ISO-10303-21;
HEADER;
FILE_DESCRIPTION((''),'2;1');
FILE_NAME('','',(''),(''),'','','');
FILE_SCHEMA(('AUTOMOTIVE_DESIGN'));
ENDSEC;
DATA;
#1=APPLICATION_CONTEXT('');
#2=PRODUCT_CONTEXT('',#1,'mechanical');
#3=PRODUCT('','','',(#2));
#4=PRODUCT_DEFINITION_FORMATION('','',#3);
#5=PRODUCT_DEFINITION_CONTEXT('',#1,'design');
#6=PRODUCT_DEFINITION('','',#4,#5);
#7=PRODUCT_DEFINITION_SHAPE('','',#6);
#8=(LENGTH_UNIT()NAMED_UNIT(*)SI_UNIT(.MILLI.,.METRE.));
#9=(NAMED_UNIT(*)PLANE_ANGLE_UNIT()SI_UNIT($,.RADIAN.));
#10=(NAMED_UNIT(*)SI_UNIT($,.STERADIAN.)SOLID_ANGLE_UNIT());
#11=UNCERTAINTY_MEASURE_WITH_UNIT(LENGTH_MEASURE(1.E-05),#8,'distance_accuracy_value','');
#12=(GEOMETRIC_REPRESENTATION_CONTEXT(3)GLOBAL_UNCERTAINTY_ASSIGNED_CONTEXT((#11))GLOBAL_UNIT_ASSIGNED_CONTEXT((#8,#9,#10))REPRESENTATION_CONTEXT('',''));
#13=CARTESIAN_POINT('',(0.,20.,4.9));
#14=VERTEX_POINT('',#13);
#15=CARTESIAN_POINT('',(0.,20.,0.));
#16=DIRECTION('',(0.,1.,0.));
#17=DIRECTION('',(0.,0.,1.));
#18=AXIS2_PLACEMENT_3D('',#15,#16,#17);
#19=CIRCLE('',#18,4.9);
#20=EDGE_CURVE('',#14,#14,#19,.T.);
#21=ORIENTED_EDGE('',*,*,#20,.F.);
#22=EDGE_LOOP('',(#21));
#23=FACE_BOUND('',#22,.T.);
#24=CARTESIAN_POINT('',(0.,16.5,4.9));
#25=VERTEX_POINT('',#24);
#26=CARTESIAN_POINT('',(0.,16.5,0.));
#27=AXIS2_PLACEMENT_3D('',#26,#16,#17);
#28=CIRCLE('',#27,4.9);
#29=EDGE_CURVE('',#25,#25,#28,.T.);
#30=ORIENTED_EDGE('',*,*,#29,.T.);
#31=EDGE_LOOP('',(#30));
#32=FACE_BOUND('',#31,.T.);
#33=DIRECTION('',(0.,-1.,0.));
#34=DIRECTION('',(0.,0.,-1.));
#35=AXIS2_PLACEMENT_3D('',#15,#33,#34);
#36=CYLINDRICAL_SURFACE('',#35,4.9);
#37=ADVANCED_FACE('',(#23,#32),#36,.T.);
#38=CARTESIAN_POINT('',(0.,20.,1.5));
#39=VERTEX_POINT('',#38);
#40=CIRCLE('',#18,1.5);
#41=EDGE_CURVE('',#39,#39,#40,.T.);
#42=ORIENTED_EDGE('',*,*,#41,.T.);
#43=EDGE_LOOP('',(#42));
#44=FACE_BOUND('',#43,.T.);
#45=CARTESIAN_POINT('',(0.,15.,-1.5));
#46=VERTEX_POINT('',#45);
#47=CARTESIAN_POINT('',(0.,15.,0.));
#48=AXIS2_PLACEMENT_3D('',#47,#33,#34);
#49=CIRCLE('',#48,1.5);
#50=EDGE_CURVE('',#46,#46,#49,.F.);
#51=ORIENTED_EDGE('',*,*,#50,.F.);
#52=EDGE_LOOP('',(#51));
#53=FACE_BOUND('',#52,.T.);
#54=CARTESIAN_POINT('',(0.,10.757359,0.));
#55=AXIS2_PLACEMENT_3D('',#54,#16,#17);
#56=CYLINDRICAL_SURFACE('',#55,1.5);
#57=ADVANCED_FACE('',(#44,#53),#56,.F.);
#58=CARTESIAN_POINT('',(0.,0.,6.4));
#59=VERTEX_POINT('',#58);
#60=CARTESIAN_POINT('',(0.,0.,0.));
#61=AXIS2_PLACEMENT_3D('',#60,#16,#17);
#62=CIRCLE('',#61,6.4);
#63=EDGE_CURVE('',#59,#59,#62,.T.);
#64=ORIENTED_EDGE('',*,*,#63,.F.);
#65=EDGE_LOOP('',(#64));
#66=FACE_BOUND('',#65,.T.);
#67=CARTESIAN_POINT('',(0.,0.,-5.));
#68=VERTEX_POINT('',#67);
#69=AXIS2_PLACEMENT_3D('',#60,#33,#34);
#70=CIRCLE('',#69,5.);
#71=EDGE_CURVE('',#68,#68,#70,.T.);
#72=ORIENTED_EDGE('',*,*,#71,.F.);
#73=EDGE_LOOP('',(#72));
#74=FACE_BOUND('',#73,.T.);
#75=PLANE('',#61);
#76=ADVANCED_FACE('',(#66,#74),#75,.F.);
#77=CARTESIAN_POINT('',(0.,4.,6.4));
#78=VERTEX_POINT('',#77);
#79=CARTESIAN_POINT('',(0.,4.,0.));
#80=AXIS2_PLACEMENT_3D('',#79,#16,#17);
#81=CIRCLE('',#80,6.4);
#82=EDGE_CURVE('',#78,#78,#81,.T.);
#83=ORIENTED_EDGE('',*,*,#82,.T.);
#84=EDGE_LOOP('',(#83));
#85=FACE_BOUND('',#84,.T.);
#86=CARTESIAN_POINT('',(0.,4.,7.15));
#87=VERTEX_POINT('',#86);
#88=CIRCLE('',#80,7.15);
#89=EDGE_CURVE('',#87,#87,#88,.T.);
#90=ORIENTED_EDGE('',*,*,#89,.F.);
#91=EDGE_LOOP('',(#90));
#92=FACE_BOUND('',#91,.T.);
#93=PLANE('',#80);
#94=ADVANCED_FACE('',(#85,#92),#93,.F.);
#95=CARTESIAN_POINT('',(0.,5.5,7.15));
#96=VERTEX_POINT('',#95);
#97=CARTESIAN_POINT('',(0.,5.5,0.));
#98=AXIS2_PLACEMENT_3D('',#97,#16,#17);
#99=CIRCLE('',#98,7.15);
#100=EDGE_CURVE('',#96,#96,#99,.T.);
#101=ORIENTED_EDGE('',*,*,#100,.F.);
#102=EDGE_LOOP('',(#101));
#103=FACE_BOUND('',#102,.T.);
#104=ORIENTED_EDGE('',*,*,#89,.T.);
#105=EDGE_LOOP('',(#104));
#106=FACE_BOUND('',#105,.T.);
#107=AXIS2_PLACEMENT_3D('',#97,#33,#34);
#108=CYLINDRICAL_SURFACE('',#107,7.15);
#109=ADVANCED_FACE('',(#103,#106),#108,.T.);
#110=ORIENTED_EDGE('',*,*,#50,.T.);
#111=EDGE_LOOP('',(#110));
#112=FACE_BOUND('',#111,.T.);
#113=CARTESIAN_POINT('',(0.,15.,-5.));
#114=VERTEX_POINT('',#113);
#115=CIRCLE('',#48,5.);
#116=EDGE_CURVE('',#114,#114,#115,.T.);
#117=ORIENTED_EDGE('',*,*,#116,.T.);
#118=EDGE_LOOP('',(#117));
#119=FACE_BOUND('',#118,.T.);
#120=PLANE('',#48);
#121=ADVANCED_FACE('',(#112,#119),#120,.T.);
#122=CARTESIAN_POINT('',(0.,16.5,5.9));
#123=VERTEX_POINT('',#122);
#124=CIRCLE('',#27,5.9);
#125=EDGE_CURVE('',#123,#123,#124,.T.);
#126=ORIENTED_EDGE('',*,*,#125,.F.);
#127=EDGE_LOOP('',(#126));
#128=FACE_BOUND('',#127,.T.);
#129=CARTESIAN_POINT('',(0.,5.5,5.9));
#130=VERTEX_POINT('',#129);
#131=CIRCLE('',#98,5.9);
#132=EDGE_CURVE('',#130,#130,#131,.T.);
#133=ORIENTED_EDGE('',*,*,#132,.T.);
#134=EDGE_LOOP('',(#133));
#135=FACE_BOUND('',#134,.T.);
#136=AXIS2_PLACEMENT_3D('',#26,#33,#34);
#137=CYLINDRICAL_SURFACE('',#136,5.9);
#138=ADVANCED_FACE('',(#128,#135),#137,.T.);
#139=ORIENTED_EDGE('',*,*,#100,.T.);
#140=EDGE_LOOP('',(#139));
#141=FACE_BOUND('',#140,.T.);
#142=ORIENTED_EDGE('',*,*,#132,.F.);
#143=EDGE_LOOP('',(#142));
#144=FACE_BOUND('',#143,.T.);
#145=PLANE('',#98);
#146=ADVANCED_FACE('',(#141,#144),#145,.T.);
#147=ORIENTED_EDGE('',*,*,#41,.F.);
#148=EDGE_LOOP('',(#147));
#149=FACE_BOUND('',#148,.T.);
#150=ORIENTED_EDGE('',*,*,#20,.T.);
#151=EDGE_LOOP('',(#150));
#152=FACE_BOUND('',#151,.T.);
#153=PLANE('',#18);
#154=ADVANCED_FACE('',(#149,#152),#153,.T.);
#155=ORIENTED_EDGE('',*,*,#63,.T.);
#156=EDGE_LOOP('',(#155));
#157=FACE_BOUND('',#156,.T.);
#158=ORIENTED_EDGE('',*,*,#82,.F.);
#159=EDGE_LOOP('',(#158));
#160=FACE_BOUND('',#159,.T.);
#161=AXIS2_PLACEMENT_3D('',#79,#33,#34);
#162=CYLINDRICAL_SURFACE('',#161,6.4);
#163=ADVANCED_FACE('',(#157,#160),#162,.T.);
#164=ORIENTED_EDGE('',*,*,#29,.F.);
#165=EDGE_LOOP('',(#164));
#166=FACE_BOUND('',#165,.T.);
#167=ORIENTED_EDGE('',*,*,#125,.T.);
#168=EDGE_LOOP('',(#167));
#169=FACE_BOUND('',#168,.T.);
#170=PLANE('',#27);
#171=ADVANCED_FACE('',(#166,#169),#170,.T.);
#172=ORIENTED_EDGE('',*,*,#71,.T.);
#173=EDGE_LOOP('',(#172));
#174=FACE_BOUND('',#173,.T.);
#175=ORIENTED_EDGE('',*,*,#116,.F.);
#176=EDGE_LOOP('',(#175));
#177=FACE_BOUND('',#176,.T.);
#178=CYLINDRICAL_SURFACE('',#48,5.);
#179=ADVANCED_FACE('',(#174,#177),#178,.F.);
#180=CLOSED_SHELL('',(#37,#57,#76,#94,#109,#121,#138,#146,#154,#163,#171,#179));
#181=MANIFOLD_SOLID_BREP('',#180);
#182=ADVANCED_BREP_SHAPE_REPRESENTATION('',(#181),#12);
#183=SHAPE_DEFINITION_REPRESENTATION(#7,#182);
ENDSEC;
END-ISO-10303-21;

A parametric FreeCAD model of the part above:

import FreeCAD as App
import Part
import Sketcher

doc = App.newDocument("Part")
params = doc.addObject("Spreadsheet::Sheet", "Params")
for row, (alias, value) in enumerate([
    ("sketch1_diameter", "12.8 mm"),
    ("pad1_length", "4 mm"),
    ("sketch2_diameter", "14.3 mm"),
    ("pad2_length", "1.5 mm"),
    ("sketch3_diameter", "11.8 mm"),
    ("pad3_length", "11 mm"),
    ("sketch4_diameter", "9.8 mm"),
    ("pad4_length", "3.5 mm"),
    ("sketch5_diameter", "10 mm"),
    ("pocket1_length", "15 mm"),
    ("sketch6_diameter", "3 mm"),
    ("pocket2_length", "5 mm"),
], start=1):
    params.set(f"A{row}", alias)
    params.set(f"B{row}", "=" + value)
    params.setAlias(f"B{row}", alias)

body = doc.addObject("PartDesign::Body", "Body")

# Sketch on XZ plane
sketch1 = doc.addObject("Sketcher::SketchObject", "Sketch")
body.addObject(sketch1)
sketch1.AttachmentSupport = (doc.XZ_Plane, [""])
sketch1.MapMode = "FlatFace"
sketch1.addGeometry(Part.Circle(App.Vector(0, 0, 0), App.Vector(0, 0, 1), 6), False)
sketch1.addConstraint([
    Sketcher.Constraint("Coincident", 0, 3, -1, 1),
    Sketcher.Constraint("Diameter", 0, 12.8),
])
sketch1.setExpression("Constraints[1]", "Params.sketch1_diameter")
pad1 = doc.addObject("PartDesign::Pad", "Pad")
body.addObject(pad1)
pad1.Profile = sketch1
pad1.setExpression("Length", "Params.pad1_length")
pad1.Reversed = True

# Sketch on XZ plane
sketch2 = doc.addObject("Sketcher::SketchObject", "Sketch001")
body.addObject(sketch2)
sketch2.AttachmentSupport = (doc.XZ_Plane, [""])
sketch2.MapMode = "FlatFace"
sketch2.AttachmentOffset = App.Placement(App.Vector(0, 0, -4), App.Rotation())
sketch2.addGeometry(Part.Circle(App.Vector(0, 0, 0), App.Vector(0, 0, 1), 7), False)
sketch2.addConstraint([
    Sketcher.Constraint("Coincident", 0, 3, -1, 1),
    Sketcher.Constraint("Diameter", 0, 14.3),
])
sketch2.setExpression("Constraints[1]", "Params.sketch2_diameter")
pad2 = doc.addObject("PartDesign::Pad", "Pad001")
body.addObject(pad2)
pad2.Profile = sketch2
pad2.setExpression("Length", "Params.pad2_length")
pad2.Reversed = True

# Sketch on XZ plane
sketch3 = doc.addObject("Sketcher::SketchObject", "Sketch002")
body.addObject(sketch3)
sketch3.AttachmentSupport = (doc.XZ_Plane, [""])
sketch3.MapMode = "FlatFace"
sketch3.AttachmentOffset = App.Placement(App.Vector(0, 0, -5.5), App.Rotation())
sketch3.addGeometry(Part.Circle(App.Vector(0, 0, 0), App.Vector(0, 0, 1), 6), False)
sketch3.addConstraint([
    Sketcher.Constraint("Coincident", 0, 3, -1, 1),
    Sketcher.Constraint("Diameter", 0, 11.8),
])
sketch3.setExpression("Constraints[1]", "Params.sketch3_diameter")
pad3 = doc.addObject("PartDesign::Pad", "Pad002")
body.addObject(pad3)
pad3.Profile = sketch3
pad3.setExpression("Length", "Params.pad3_length")
pad3.Reversed = True

# Sketch on XZ plane
sketch4 = doc.addObject("Sketcher::SketchObject", "Sketch003")
body.addObject(sketch4)
sketch4.AttachmentSupport = (doc.XZ_Plane, [""])
sketch4.MapMode = "FlatFace"
sketch4.AttachmentOffset = App.Placement(App.Vector(0, 0, -16.5), App.Rotation())
sketch4.addGeometry(Part.Circle(App.Vector(0, 0, 0), App.Vector(0, 0, 1), 4.9), False)
sketch4.addConstraint([
    Sketcher.Constraint("Coincident", 0, 3, -1, 1),
    Sketcher.Constraint("Diameter", 0, 9.8),
])
sketch4.setExpression("Constraints[1]", "Params.sketch4_diameter")
pad4 = doc.addObject("PartDesign::Pad", "Pad003")
body.addObject(pad4)
pad4.Profile = sketch4
pad4.setExpression("Length", "Params.pad4_length")
pad4.Reversed = True

# Sketch on XZ plane
sketch5 = doc.addObject("Sketcher::SketchObject", "Sketch004")
body.addObject(sketch5)
sketch5.AttachmentSupport = (doc.XZ_Plane, [""])
sketch5.MapMode = "FlatFace"
sketch5.addGeometry(Part.Circle(App.Vector(0, 0, 0), App.Vector(0, 0, 1), 5), False)
sketch5.addConstraint([
    Sketcher.Constraint("Coincident", 0, 3, -1, 1),
    Sketcher.Constraint("Diameter", 0, 10.0),
])
sketch5.setExpression("Constraints[1]", "Params.sketch5_diameter")
pocket1 = doc.addObject("PartDesign::Pocket", "Pocket")
body.addObject(pocket1)
pocket1.Profile = sketch5
pocket1.setExpression("Length", "Params.pocket1_length")

# Sketch on XZ plane
sketch6 = doc.addObject("Sketcher::SketchObject", "Sketch005")
body.addObject(sketch6)
sketch6.AttachmentSupport = (doc.XZ_Plane, [""])
sketch6.MapMode = "FlatFace"
sketch6.AttachmentOffset = App.Placement(App.Vector(0, 0, -20), App.Rotation())
sketch6.addGeometry(Part.Circle(App.Vector(0, 0, 0), App.Vector(0, 0, 1), 1.5), False)
sketch6.addConstraint([
    Sketcher.Constraint("Coincident", 0, 3, -1, 1),
    Sketcher.Constraint("Diameter", 0, 3.0),
])
sketch6.setExpression("Constraints[1]", "Params.sketch6_diameter")
pocket2 = doc.addObject("PartDesign::Pocket", "Pocket001")
body.addObject(pocket2)
pocket2.Profile = sketch6
pocket2.setExpression("Length", "Params.pocket2_length")
pocket2.Reversed = True

doc.recompute()
